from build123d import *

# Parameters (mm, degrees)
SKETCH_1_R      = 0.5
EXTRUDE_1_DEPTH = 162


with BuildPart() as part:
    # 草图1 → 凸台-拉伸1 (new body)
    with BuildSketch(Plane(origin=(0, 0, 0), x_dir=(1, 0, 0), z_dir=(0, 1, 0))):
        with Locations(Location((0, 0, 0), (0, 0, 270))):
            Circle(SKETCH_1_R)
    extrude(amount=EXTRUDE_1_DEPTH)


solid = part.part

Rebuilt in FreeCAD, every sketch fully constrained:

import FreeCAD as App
import Part
import Sketcher

V = App.Vector
Q = App.Units.Quantity

doc = App.newDocument("Part")
params = doc.addObject("Spreadsheet::Sheet", "Params")
for row, (alias, value) in enumerate([
    ("sketch1_diameter", "1 mm"),
    ("pad1_length", "162 mm"),
], start=1):
    params.set(f"A{row}", alias)
    params.set(f"B{row}", "=" + value)
    params.setAlias(f"B{row}", alias)

body = doc.addObject("PartDesign::Body", "Body")

# Sketch on XZ plane
sketch1 = body.newObject("Sketcher::SketchObject", "Sketch")
sketch1.AttachmentSupport = (doc.getObject("XZ_Plane"), [""])
sketch1.MapMode = "FlatFace"
sketch1.addGeometry(Part.Circle(V(0, 0, 0), V(0, 0, 1), 0.5), False)
sketch1.addConstraint([
    Sketcher.Constraint("Coincident", 0, 3, -1, 1),
    Sketcher.Constraint("Diameter", 0, Q("1 mm")),
])
sketch1.setExpression("Constraints[1]", "Params.sketch1_diameter")
pad1 = body.newObject("PartDesign::Pad", "Pad")
pad1.Profile = sketch1
pad1.setExpression("Length", "Params.pad1_length")
pad1.Reversed = True

doc.recompute()
